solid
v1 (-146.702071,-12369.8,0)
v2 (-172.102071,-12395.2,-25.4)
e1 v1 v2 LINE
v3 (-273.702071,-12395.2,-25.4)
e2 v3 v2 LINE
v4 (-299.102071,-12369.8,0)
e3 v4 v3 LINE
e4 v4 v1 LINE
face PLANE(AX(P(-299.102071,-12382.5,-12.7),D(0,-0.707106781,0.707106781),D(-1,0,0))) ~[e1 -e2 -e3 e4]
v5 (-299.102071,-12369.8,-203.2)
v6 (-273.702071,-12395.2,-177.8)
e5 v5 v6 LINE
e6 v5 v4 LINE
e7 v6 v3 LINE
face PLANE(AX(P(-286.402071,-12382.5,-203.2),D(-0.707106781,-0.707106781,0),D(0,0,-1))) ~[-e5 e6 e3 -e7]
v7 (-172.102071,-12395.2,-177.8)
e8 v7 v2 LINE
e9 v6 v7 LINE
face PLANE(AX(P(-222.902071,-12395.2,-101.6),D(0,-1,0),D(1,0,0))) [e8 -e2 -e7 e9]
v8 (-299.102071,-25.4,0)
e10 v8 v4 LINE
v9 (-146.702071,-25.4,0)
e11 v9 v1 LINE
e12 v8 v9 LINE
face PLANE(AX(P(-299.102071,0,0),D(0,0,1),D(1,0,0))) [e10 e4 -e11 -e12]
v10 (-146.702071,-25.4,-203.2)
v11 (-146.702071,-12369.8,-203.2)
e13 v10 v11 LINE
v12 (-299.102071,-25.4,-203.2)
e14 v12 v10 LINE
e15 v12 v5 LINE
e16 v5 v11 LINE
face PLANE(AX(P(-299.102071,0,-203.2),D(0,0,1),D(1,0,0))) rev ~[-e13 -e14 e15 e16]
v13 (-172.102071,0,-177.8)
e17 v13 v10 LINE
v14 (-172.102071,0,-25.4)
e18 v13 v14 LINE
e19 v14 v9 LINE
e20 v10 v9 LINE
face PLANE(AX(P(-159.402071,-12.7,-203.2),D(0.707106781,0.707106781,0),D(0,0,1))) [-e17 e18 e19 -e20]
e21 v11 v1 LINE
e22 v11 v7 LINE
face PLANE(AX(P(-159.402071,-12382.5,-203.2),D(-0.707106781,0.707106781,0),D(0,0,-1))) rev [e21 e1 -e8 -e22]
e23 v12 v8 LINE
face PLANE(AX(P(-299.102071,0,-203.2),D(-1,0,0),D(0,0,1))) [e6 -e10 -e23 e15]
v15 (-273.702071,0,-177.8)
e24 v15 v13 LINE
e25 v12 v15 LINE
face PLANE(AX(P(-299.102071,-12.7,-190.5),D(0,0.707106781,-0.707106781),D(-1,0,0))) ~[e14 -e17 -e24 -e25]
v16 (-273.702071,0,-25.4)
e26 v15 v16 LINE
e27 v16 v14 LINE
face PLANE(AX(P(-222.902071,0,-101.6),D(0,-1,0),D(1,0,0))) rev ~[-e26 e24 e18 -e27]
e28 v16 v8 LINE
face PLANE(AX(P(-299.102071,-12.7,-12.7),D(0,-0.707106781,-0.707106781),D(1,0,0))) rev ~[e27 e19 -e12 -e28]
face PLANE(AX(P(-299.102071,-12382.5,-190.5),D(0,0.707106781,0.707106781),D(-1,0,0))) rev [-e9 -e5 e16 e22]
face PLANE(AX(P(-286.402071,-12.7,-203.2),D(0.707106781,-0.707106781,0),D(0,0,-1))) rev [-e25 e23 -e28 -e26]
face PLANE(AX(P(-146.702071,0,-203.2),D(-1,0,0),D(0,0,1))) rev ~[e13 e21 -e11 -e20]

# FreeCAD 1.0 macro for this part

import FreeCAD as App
import Part
import Sketcher

V = App.Vector
Q = App.Units.Quantity


def edges_at(feature, points):
    """Names of the edges that pass closest to the given points."""
    edges = feature.Shape.Edges
    near = lambda p: min(range(len(edges)), key=lambda i: edges[i].distToShape(Part.Vertex(*p))[0])
    return sorted({f"Edge{near(p) + 1}" for p in points})

doc = App.newDocument("Part")
params = doc.addObject("Spreadsheet::Sheet", "Params")
for row, (alias, value) in enumerate([
    ("sketch1_width", "6 in"),
    ("sketch1_height", "8 in"),
    ("pad1_length", "488 in"),
    ("chamfer_size", "1 in"),
    ("chamfer2_size", "1 in"),
], start=1):
    params.set(f"A{row}", alias)
    params.set(f"B{row}", "=" + value)
    params.setAlias(f"B{row}", alias)

body = doc.addObject("PartDesign::Body", "Body")

sketch1 = body.newObject("Sketcher::SketchObject", "Sketch")
sketch1.AttachmentSupport = (doc.getObject("XZ_Plane"), [""])
sketch1.MapMode = "FlatFace"
sketch1.addGeometry(Part.LineSegment(V(-299, 0, 0), V(-299, -203, 0)), False)
sketch1.addGeometry(Part.LineSegment(V(-299, -203, 0), V(-147, -203, 0)), False)
sketch1.addGeometry(Part.LineSegment(V(-147, -203, 0), V(-147, 0, 0)), False)
sketch1.addGeometry(Part.LineSegment(V(-147, 0, 0), V(-299, 0, 0)), False)
sketch1.addConstraint(Sketcher.Constraint("Coincident", 0, 2, 1, 1))
sketch1.addConstraint(Sketcher.Constraint("Coincident", 1, 2, 2, 1))
sketch1.addConstraint(Sketcher.Constraint("Coincident", 2, 2, 3, 1))
sketch1.addConstraint(Sketcher.Constraint("Coincident", 3, 2, 0, 1))
sketch1.addConstraint(Sketcher.Constraint("Vertical", 0))
sketch1.addConstraint(Sketcher.Constraint("Horizontal", 1))
sketch1.addConstraint(Sketcher.Constraint("Vertical", 2))
sketch1.addConstraint(Sketcher.Constraint("Horizontal", 3))
sketch1.addConstraint(Sketcher.Constraint("PointOnObject", 2, 2, -1))
sketch1.addConstraint(Sketcher.Constraint("DistanceX", 1, 1, 1, 2, Q("6 in")))
sketch1.addConstraint(Sketcher.Constraint("DistanceY", 0, 2, 0, 1, Q("8 in")))
sketch1.addConstraint(Sketcher.Constraint("DistanceX", 0, 2, -1, 1, Q("299.102071 mm")))
sketch1.setExpression("Constraints[9]", "Params.sketch1_width")
sketch1.setExpression("Constraints[10]", "Params.sketch1_height")
pad1 = body.newObject("PartDesign::Pad", "Pad")
pad1.Profile = sketch1
pad1.setExpression("Length", "Params.pad1_length")
doc.recompute()

chamfer = body.newObject("PartDesign::Chamfer", "Chamfer")
chamfer.Base = (pad1, edges_at(pad1, [
    (-146.702, -12395.2, -101.6),
    (-222.902, -12395.2, 0),
    (-299.102, -12395.2, -101.6),
    (-222.902, -12395.2, -203.2),
]))
chamfer.setExpression("Size", "Params.chamfer_size")
doc.recompute()

chamfer2 = body.newObject("PartDesign::Chamfer", "Chamfer001")
chamfer2.Base = (chamfer, edges_at(chamfer, [
    (-222.902, 0, 0),
    (-146.702, 0, -101.6),
    (-222.902, 0, -203.2),
    (-299.102, 0, -101.6),
]))
chamfer2.setExpression("Size", "Params.chamfer2_size")

doc.recompute()
